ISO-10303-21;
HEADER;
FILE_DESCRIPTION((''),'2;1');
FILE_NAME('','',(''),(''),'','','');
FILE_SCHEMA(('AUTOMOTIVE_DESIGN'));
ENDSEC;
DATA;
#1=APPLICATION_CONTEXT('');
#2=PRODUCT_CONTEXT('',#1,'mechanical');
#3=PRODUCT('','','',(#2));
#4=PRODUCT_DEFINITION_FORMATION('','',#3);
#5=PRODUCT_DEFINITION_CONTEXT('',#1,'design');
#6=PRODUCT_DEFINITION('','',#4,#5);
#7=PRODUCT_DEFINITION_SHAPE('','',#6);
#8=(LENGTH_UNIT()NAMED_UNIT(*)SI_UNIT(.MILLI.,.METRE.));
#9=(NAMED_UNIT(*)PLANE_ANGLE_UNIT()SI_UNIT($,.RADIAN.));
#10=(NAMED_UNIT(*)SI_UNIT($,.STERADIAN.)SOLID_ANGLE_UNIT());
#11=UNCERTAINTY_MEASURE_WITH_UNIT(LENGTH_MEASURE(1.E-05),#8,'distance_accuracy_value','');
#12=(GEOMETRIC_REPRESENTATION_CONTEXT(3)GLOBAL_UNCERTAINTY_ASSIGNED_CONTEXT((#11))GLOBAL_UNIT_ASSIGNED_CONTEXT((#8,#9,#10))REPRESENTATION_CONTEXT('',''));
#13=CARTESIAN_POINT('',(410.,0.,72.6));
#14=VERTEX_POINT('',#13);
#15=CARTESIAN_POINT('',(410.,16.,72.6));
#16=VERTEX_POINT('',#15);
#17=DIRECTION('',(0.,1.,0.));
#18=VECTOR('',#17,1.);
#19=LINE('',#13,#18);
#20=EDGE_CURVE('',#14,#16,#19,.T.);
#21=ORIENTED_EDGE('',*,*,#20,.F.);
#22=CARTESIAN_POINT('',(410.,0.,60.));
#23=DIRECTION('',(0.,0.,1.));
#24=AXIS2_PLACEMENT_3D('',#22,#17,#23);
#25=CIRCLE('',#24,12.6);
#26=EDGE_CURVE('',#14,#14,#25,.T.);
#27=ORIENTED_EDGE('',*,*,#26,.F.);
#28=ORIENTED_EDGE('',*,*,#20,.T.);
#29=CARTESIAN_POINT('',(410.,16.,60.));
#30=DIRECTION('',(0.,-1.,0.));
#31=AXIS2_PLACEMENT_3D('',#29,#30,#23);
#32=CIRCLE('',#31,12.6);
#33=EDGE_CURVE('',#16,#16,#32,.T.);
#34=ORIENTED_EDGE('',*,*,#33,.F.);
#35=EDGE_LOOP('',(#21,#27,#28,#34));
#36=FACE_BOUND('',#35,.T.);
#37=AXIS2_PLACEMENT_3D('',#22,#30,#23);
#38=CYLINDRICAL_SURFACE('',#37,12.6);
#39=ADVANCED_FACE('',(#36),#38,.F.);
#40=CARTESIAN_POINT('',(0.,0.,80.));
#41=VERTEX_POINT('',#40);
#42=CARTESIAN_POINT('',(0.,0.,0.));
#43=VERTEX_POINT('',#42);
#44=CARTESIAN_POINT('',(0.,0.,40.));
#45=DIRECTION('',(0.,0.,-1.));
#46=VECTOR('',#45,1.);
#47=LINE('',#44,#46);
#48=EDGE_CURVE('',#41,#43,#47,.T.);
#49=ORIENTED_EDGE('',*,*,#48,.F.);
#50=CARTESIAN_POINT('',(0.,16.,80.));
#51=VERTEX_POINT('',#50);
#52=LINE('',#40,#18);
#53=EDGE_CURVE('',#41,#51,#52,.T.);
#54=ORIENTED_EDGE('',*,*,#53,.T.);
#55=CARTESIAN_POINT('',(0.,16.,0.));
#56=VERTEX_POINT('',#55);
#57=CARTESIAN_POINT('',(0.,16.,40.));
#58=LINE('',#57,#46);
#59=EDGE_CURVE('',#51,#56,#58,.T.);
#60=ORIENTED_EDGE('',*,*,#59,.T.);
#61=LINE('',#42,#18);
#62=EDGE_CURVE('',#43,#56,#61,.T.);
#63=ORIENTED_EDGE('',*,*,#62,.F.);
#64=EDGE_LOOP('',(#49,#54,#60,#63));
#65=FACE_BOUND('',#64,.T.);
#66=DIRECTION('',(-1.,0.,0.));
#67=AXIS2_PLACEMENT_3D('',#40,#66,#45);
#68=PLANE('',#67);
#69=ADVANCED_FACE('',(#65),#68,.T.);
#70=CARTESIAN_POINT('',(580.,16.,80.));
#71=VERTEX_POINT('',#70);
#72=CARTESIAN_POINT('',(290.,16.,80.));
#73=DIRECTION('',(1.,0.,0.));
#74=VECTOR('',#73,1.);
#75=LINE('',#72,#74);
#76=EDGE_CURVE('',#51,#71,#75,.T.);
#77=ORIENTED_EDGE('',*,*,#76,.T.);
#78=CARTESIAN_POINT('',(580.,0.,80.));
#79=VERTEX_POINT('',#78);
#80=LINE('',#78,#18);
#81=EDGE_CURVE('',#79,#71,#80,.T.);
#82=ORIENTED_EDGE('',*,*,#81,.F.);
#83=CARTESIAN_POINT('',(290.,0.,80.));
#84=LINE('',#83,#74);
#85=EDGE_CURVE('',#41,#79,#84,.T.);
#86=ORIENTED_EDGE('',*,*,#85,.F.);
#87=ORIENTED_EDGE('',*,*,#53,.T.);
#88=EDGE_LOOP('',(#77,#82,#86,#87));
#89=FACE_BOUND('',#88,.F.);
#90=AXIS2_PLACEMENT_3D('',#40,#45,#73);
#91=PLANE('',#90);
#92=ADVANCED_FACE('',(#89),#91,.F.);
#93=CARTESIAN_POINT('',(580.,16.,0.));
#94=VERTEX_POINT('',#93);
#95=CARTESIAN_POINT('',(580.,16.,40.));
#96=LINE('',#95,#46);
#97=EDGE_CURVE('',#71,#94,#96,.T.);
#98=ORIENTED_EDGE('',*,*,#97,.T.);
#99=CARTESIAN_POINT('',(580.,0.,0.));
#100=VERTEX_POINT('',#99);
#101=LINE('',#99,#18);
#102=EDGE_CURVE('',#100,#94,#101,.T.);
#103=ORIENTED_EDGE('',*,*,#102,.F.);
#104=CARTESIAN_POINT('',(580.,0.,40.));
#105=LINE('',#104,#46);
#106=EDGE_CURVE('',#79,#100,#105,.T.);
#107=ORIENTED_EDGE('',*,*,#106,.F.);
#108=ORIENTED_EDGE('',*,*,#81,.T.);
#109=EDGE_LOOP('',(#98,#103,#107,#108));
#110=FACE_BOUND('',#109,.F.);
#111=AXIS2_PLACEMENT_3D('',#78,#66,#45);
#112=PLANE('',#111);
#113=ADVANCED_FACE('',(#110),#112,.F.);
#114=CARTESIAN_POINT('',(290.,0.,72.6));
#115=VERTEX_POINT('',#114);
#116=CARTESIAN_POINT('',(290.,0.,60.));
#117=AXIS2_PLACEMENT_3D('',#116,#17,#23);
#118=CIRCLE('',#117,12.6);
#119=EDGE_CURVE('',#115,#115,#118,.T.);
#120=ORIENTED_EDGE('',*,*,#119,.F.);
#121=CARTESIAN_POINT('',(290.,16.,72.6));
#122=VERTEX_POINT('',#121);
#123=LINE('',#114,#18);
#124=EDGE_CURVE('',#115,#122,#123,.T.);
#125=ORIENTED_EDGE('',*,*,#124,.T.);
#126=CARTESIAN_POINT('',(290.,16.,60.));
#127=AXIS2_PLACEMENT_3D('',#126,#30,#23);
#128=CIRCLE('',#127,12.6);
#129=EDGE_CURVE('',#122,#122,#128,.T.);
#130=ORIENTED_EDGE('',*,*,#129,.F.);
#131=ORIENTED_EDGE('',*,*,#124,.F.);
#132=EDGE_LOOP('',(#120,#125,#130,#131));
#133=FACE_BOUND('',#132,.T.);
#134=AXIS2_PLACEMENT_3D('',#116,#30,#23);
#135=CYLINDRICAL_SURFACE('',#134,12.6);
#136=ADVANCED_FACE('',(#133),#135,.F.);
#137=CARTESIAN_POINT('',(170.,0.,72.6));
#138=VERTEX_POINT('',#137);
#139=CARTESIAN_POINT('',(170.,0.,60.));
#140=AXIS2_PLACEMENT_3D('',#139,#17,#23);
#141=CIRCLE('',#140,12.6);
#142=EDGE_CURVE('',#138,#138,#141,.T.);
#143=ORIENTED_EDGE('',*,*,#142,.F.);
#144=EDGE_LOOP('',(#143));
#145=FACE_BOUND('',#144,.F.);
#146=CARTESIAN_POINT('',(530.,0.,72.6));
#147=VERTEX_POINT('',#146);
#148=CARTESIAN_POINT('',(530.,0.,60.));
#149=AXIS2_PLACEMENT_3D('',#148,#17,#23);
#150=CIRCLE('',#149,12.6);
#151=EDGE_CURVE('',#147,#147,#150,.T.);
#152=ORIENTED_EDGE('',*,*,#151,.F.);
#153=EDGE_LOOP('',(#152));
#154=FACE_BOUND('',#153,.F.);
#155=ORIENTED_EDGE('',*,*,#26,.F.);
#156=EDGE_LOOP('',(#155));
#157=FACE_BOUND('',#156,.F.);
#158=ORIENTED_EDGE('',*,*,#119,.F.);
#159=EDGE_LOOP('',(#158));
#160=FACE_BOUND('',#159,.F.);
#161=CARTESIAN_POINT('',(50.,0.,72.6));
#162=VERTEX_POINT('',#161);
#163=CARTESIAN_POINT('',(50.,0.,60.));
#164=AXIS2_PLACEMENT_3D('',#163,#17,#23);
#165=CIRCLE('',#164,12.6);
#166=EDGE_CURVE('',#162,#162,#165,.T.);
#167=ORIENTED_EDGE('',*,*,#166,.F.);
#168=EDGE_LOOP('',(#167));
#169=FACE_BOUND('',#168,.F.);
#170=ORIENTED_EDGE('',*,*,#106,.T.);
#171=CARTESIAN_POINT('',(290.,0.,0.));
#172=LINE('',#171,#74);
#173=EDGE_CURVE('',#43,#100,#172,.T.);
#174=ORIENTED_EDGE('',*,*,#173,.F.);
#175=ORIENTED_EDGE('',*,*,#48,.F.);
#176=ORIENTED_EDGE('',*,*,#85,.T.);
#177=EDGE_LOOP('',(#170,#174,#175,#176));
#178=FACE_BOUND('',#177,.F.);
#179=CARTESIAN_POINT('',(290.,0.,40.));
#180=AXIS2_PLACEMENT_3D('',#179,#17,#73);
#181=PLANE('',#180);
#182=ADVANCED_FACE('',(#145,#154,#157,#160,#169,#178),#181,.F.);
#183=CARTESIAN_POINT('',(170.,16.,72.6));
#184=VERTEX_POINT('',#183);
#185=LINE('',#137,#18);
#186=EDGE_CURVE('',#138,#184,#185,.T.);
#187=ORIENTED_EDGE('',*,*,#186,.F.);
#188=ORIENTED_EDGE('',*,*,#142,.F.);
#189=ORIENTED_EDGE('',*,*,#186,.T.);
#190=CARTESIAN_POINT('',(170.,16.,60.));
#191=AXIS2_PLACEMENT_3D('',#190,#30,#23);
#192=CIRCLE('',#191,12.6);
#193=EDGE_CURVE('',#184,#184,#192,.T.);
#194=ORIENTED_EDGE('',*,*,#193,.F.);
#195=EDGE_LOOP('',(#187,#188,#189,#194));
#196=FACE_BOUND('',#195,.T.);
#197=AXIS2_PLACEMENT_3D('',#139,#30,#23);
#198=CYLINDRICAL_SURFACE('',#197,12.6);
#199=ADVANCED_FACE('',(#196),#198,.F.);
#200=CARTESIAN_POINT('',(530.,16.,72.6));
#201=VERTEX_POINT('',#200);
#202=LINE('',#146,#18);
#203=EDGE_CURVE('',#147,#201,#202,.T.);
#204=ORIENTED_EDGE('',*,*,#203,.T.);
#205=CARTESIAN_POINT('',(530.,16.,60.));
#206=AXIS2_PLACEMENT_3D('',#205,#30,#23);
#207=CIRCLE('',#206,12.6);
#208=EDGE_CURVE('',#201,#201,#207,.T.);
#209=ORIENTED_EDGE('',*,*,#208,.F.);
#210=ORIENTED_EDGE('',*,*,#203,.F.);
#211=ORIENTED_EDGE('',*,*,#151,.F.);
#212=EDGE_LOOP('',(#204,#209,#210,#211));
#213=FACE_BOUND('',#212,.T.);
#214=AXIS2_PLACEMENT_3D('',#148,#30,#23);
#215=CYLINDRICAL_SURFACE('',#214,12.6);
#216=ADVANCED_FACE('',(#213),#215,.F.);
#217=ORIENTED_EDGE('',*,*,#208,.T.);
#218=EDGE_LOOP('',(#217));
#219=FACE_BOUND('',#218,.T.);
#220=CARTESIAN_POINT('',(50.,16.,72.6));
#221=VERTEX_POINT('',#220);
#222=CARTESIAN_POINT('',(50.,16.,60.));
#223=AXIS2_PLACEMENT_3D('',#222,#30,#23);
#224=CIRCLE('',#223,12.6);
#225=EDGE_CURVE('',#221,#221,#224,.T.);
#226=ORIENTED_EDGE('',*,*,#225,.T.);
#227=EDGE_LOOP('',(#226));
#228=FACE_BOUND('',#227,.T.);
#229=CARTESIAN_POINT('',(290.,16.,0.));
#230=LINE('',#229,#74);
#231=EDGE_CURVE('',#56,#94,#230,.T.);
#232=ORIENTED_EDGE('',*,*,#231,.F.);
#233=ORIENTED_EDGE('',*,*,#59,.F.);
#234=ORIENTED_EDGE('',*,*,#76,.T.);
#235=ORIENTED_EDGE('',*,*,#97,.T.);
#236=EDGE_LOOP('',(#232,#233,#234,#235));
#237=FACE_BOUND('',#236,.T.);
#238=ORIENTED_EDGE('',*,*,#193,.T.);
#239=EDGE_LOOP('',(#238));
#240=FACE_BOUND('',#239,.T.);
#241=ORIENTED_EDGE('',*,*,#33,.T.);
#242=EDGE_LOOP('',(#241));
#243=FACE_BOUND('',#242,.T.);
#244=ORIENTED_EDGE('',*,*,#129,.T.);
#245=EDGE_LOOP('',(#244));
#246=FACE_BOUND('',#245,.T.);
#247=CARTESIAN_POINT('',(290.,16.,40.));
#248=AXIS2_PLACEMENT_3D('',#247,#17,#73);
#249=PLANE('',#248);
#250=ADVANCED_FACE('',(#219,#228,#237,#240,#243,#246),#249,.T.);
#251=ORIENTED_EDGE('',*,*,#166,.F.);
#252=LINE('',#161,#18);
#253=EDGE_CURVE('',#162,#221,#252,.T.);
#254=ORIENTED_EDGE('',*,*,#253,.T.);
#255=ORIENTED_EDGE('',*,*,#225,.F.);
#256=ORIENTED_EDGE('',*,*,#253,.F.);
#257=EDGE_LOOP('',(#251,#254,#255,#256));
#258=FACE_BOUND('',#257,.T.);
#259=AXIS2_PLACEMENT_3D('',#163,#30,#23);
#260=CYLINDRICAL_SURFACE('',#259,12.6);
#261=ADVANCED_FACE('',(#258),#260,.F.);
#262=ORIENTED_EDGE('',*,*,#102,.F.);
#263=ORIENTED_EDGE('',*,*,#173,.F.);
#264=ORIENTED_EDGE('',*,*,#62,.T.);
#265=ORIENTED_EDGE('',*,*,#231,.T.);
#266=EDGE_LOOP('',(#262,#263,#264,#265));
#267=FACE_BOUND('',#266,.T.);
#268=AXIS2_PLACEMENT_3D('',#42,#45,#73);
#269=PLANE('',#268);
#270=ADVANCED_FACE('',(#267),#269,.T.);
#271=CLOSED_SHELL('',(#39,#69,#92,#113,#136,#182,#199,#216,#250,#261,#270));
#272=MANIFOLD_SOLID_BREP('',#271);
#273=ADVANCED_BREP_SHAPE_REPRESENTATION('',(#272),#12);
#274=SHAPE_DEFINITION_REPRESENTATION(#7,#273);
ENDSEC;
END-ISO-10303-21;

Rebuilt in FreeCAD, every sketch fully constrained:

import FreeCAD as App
import Part
import Sketcher
Q = App.Units.Quantity

doc = App.newDocument("Part")
body = doc.addObject("PartDesign::Body", "Body")

sketch1 = doc.addObject("Sketcher::SketchObject", "Sketch")
body.addObject(sketch1)
sketch1.AttachmentSupport = (doc.XZ_Plane, [""])
sketch1.MapMode = "FlatFace"
sketch1.addGeometry([
    Part.LineSegment(App.Vector(0, 0, 0), App.Vector(0, 80, 0)),
    Part.LineSegment(App.Vector(0, 80, 0), App.Vector(580, 80, 0)),
    Part.LineSegment(App.Vector(580, 80, 0), App.Vector(580, 0, 0)),
    Part.LineSegment(App.Vector(580, 0, 0), App.Vector(0, 0, 0)),
], False)
sketch1.addConstraint([
    Sketcher.Constraint("Coincident", 0, 2, 1, 1),
    Sketcher.Constraint("Coincident", 1, 2, 2, 1),
    Sketcher.Constraint("Coincident", 2, 2, 3, 1),
    Sketcher.Constraint("Coincident", 3, 2, 0, 1),
    Sketcher.Constraint("Vertical", 0),
    Sketcher.Constraint("Horizontal", 1),
    Sketcher.Constraint("Vertical", 2),
    Sketcher.Constraint("Horizontal", 3),
    Sketcher.Constraint("Coincident", 3, 2, -1, 1),
    Sketcher.Constraint("DistanceX", 1, 1, 1, 2, Q("580 mm")),
    Sketcher.Constraint("DistanceY", 0, 1, 0, 2, Q("80 mm")),
])
pad1 = doc.addObject("PartDesign::Pad", "Pad")
body.addObject(pad1)
pad1.Profile = sketch1
pad1.Length = 16
pad1.Reversed = True

sketch2 = doc.addObject("Sketcher::SketchObject", "Sketch001")
body.addObject(sketch2)
sketch2.AttachmentSupport = (doc.XZ_Plane, [""])
sketch2.MapMode = "FlatFace"
sketch2.addGeometry(Part.Circle(App.Vector(50, 60, 0), App.Vector(0, 0, 1), 12.6), False)
sketch2.addConstraint([
    Sketcher.Constraint("Diameter", 0, Q("25.2 mm")),
    Sketcher.Constraint("DistanceX", -1, 1, 0, 3, Q("50 mm")),
    Sketcher.Constraint("DistanceY", -1, 1, 0, 3, Q("60 mm")),
])
pocket1 = doc.addObject("PartDesign::Pocket", "Pocket")
body.addObject(pocket1)
pocket1.Profile = sketch2
pocket1.Length = 18
doc.recompute()

linearpattern = doc.addObject("PartDesign::LinearPattern", "LinearPattern")
body.addObject(linearpattern)
linearpattern.Originals = [pocket1]
linearpattern.Direction = (doc.X_Axis, [""])
linearpattern.Mode = "offset"
linearpattern.Offset = 120
linearpattern.Occurrences = 5
body.Tip = linearpattern

doc.recompute()
